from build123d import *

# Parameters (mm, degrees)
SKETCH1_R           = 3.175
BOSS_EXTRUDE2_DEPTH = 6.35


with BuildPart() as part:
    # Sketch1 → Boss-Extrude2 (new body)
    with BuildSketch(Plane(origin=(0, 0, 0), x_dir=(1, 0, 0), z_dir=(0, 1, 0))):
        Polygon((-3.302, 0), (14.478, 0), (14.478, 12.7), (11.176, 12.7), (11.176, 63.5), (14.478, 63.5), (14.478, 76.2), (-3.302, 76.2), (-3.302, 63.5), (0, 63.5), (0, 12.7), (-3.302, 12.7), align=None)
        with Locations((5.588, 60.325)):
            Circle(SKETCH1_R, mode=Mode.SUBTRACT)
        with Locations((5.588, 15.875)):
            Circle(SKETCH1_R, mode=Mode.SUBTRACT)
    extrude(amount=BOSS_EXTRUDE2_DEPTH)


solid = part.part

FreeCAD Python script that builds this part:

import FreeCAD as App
import Part
import Sketcher
Q = App.Units.Quantity


def add_polygon(sketch, points):
    """Adds a closed chain of lines whose ends are joined by coincident constraints."""
    first, n = sketch.GeometryCount, len(points)
    for a, b in zip(points, points[1:] + points[:1]):
        sketch.addGeometry(Part.LineSegment(App.Vector(*a, 0), App.Vector(*b, 0)), False)
    for i in range(n):
        sketch.addConstraint(Sketcher.Constraint("Coincident", first + i, 2, first + (i + 1) % n, 1))

doc = App.newDocument("Part")
body = doc.addObject("PartDesign::Body", "Body")

# Sketch on XZ plane
sketch1 = body.newObject("Sketcher::SketchObject", "Sketch")
sketch1.AttachmentSupport = (doc.getObject("XZ_Plane"), [""])
sketch1.MapMode = "FlatFace"
add_polygon(sketch1, [(-3.3, 0), (14.5, 0), (14.5, -12.7), (11.2, -12.7), (11.2, -63.5), (14.5, -63.5), (14.5, -76.2), (-3.3, -76.2), (-3.3, -63.5), (0, -63.5), (0, -12.7), (-3.3, -12.7)])  # lines 0-11
sketch1.addGeometry(Part.Circle(App.Vector(5.6, -15.9, 0), App.Vector(0, 0, 1), 3.2), False)  # 12
sketch1.addGeometry(Part.Circle(App.Vector(5.6, -60.3, 0), App.Vector(0, 0, 1), 3.2), False)  # 13
sketch1.addConstraint([
    Sketcher.Constraint("Horizontal", 0),
    Sketcher.Constraint("Vertical", 1),
    Sketcher.Constraint("Horizontal", 2),
    Sketcher.Constraint("Vertical", 3),
    Sketcher.Constraint("Horizontal", 4),
    Sketcher.Constraint("Vertical", 5),
    Sketcher.Constraint("Horizontal", 6),
    Sketcher.Constraint("Vertical", 7),
    Sketcher.Constraint("Horizontal", 8),
    Sketcher.Constraint("Vertical", 9),
    Sketcher.Constraint("Horizontal", 10),
    Sketcher.Constraint("Vertical", 11),
    Sketcher.Constraint("Equal", 12, 13),
    Sketcher.Constraint("PointOnObject", 0, 2, -1),
    Sketcher.Constraint("PointOnObject", 8, 2, -2),
    Sketcher.Constraint("Horizontal", 4, 2, 7, 2),
    Sketcher.Constraint("Horizontal", 2, 2, 9, 2),
    Sketcher.Constraint("Vertical", 12, 3, 13, 3),
    Sketcher.Constraint("Vertical", 1, 2, 4, 2),
    Sketcher.Constraint("Vertical", 7, 2, 10, 2),
    Sketcher.Constraint("Equal", 4, 8),
    Sketcher.Constraint("Equal", 1, 5),
    Sketcher.Constraint("Diameter", 12, Q("0.25 in")),
    Sketcher.Constraint("DistanceY", 3, 2, 3, 1, Q("2 in")),
    Sketcher.Constraint("DistanceX", 0, 1, 0, 2, Q("0.7 in")),
    Sketcher.Constraint("DistanceY", 1, 2, 1, 1, Q("0.5 in")),
    Sketcher.Constraint("DistanceX", 2, 2, 2, 1, Q("0.13 in")),
    Sketcher.Constraint("DistanceX", -1, 1, 12, 3, Q("0.22 in")),
    Sketcher.Constraint("DistanceY", 13, 3, 12, 3, Q("1.75 in")),
    Sketcher.Constraint("DistanceY", 12, 3, -1, 1, Q("0.625 in")),
])
pad1 = body.newObject("PartDesign::Pad", "Pad")
pad1.Profile = sketch1
pad1.Length = Q("0.25 in")
pad1.Reversed = True

doc.recompute()
